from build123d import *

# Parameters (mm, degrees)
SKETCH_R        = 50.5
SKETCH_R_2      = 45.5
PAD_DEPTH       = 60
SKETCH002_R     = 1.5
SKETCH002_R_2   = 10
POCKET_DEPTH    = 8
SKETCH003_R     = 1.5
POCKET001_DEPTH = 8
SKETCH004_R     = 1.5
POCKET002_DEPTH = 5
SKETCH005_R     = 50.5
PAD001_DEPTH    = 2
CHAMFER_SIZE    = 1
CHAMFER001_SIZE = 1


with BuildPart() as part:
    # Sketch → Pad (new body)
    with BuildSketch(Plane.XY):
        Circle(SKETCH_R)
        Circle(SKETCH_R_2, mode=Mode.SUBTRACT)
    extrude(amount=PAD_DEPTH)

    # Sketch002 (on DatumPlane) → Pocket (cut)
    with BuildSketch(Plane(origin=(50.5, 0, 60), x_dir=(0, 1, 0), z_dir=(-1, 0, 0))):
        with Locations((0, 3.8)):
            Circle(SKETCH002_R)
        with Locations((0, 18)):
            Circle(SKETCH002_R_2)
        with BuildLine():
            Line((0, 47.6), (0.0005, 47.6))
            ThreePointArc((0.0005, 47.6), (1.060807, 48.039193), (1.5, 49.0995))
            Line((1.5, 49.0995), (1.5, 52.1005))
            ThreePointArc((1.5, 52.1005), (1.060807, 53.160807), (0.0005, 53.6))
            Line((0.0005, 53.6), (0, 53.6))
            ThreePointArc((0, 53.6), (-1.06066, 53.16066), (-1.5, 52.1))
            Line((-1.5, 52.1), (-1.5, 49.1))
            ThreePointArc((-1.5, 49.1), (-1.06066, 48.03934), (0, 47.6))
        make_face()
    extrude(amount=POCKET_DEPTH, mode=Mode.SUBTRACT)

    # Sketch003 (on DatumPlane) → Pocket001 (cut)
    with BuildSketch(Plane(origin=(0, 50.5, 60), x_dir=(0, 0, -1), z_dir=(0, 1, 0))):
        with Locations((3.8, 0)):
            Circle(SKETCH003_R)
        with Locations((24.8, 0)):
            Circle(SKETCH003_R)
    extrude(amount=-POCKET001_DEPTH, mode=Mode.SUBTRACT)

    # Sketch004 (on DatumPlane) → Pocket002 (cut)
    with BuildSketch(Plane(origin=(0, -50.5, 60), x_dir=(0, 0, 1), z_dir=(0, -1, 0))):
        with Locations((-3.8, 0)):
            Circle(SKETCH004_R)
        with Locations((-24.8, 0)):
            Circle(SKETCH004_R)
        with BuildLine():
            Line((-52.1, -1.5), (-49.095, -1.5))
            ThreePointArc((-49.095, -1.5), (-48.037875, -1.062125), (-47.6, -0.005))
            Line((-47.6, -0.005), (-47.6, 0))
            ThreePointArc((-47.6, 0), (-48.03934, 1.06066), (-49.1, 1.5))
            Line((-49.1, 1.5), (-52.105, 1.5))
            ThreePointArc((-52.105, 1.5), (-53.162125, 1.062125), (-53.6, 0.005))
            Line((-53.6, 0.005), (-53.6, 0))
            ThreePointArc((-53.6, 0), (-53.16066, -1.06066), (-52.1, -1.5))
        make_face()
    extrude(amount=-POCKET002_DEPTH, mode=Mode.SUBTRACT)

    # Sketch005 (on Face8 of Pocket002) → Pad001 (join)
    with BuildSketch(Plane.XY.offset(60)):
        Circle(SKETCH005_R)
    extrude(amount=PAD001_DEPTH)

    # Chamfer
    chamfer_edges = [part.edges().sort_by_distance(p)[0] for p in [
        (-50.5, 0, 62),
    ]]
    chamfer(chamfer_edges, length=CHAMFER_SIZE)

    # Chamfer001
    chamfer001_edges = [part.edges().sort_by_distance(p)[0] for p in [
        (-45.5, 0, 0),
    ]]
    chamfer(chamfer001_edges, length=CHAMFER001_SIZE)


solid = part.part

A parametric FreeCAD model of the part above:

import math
import FreeCAD as App
import Part
import Sketcher
Q = App.Units.Quantity


def edges_at(feature, points):
    """Names of the edges that pass closest to the given points."""
    edges = feature.Shape.Edges
    near = lambda p: min(range(len(edges)), key=lambda i: edges[i].distToShape(Part.Vertex(*p))[0])
    return sorted({f"Edge{near(p) + 1}" for p in points})

doc = App.newDocument("Part")
body = doc.addObject("PartDesign::Body", "Body")

# Sketch on XY plane
sketch1 = doc.addObject("Sketcher::SketchObject", "Sketch")
body.addObject(sketch1)
sketch1.AttachmentSupport = (doc.XY_Plane, [""])
sketch1.MapMode = "FlatFace"
sketch1.addGeometry([
    Part.Circle(App.Vector(0, 0, 0), App.Vector(0, 0, 1), 50),
    Part.Circle(App.Vector(0, 0, 0), App.Vector(0, 0, 1), 46),
], False)
sketch1.addConstraint([
    Sketcher.Constraint("Coincident", 0, 3, -1, 1),
    Sketcher.Constraint("Coincident", 1, 3, -1, 1),
    Sketcher.Constraint("Diameter", 0, Q("101 mm")),
    Sketcher.Constraint("Diameter", 1, Q("91 mm")),
])
pad1 = doc.addObject("PartDesign::Pad", "Pad")
body.addObject(pad1)
pad1.Profile = sketch1
pad1.Length = 60

# Sketch on YZ plane
sketch2 = doc.addObject("Sketcher::SketchObject", "Sketch001")
body.addObject(sketch2)
sketch2.AttachmentSupport = (doc.YZ_Plane, [""])
sketch2.MapMode = "FlatFace"
sketch2.AttachmentOffset = App.Placement(App.Vector(0, 0, 50.5), App.Rotation())
sketch2.addGeometry([
    Part.Circle(App.Vector(0, 56.2, 0), App.Vector(0, 0, 1), 1.5),  # 0
    Part.Circle(App.Vector(0, 42, 0), App.Vector(0, 0, 1), 10),  # 1
    Part.LineSegment(App.Vector(0, 12.4, 0), App.Vector(0.0005, 12.4, 0)),  # 2
    Part.ArcOfCircle(Part.Circle(App.Vector(0.0005, 10.9005, 0), App.Vector(0, 0, 1), 1.4995), math.radians(0), math.radians(90)),  # 3
    Part.LineSegment(App.Vector(1.5, 10.9005, 0), App.Vector(1.5, 7.8995, 0)),  # 4
    Part.ArcOfCircle(Part.Circle(App.Vector(0.0005, 7.8995, 0), App.Vector(0, 0, 1), 1.4995), math.radians(-90), math.radians(0)),  # 5
    Part.LineSegment(App.Vector(0.0005, 6.4, 0), App.Vector(0, 6.4, 0)),  # 6
    Part.ArcOfCircle(Part.Circle(App.Vector(0, 7.9, 0), App.Vector(0, 0, 1), 1.5), math.radians(-180), math.radians(-90)),  # 7
    Part.LineSegment(App.Vector(-1.5, 7.9, 0), App.Vector(-1.5, 10.9, 0)),  # 8
    Part.ArcOfCircle(Part.Circle(App.Vector(0, 10.9, 0), App.Vector(0, 0, 1), 1.5), math.radians(90), math.radians(180)),  # 9
], False)
sketch2.addConstraint([
    Sketcher.Constraint("Tangent", 2, 2, 3, 2),
    Sketcher.Constraint("Tangent", 3, 1, 4, 1),
    Sketcher.Constraint("Tangent", 4, 2, 5, 2),
    Sketcher.Constraint("Tangent", 5, 1, 6, 1),
    Sketcher.Constraint("Coincident", 6, 2, 7, 2),
    Sketcher.Constraint("Tangent", 7, 1, 8, 1),
    Sketcher.Constraint("Tangent", 8, 2, 9, 2),
    Sketcher.Constraint("Coincident", 9, 1, 2, 1),
    Sketcher.Constraint("Vertical", 4),
    Sketcher.Constraint("Vertical", 8),
    Sketcher.Constraint("Equal", 3, 5),
    Sketcher.Constraint("Equal", 0, 7),
    Sketcher.Constraint("Equal", 7, 9),
    Sketcher.Constraint("PointOnObject", 0, 3, -2),
    Sketcher.Constraint("PointOnObject", 1, 3, -2),
    Sketcher.Constraint("PointOnObject", 7, 3, -2),
    Sketcher.Constraint("PointOnObject", 6, 2, -2),
    Sketcher.Constraint("PointOnObject", 9, 1, -2),
    Sketcher.Constraint("Vertical", 5, 3, 2, 2),
    Sketcher.Constraint("Vertical", 2, 2, 5, 1),
    Sketcher.Constraint("Diameter", 0, Q("3 mm")),
    Sketcher.Constraint("Diameter", 1, Q("20 mm")),
    Sketcher.Constraint("DistanceY", 8, 1, 8, 2, Q("3 mm")),
    Sketcher.Constraint("DistanceY", -1, 1, 1, 3, Q("42 mm")),
    Sketcher.Constraint("DistanceX", 7, 1, 4, 2, Q("3 mm")),
    Sketcher.Constraint("DistanceY", -1, 1, 0, 3, Q("56.2 mm")),
    Sketcher.Constraint("DistanceY", -1, 1, 7, 3, Q("7.900001 mm")),
    Sketcher.Constraint("Radius", 3, Q("1.499499 mm")),
])
pocket1 = doc.addObject("PartDesign::Pocket", "Pocket")
body.addObject(pocket1)
pocket1.Profile = sketch2
pocket1.Length = 8

# Sketch on XZ plane
sketch3 = doc.addObject("Sketcher::SketchObject", "Sketch002")
body.addObject(sketch3)
sketch3.AttachmentSupport = (doc.XZ_Plane, [""])
sketch3.MapMode = "FlatFace"
sketch3.AttachmentOffset = App.Placement(App.Vector(0, 0, -50.5), App.Rotation())
sketch3.addGeometry([
    Part.Circle(App.Vector(0, 56.2, 0), App.Vector(0, 0, 1), 1.5),
    Part.Circle(App.Vector(0, 35.2, 0), App.Vector(0, 0, 1), 1.5),
], False)
sketch3.addConstraint([
    Sketcher.Constraint("Equal", 0, 1),
    Sketcher.Constraint("PointOnObject", 0, 3, -2),
    Sketcher.Constraint("PointOnObject", 1, 3, -2),
    Sketcher.Constraint("Diameter", 0, Q("3 mm")),
    Sketcher.Constraint("DistanceY", 1, 3, 0, 3, Q("21 mm")),
    Sketcher.Constraint("DistanceY", -1, 1, 0, 3, Q("56.2 mm")),
])
pocket2 = doc.addObject("PartDesign::Pocket", "Pocket001")
body.addObject(pocket2)
pocket2.Profile = sketch3
pocket2.Length = 8
pocket2.Reversed = True

# Sketch on XZ plane
sketch4 = doc.addObject("Sketcher::SketchObject", "Sketch003")
body.addObject(sketch4)
sketch4.AttachmentSupport = (doc.XZ_Plane, [""])
sketch4.MapMode = "FlatFace"
sketch4.AttachmentOffset = App.Placement(App.Vector(0, 0, 50.5), App.Rotation())
sketch4.addGeometry([
    Part.Circle(App.Vector(0, 56.2, 0), App.Vector(0, 0, 1), 1.5),  # 0
    Part.Circle(App.Vector(0, 35.2, 0), App.Vector(0, 0, 1), 1.5),  # 1
    Part.LineSegment(App.Vector(1.5, 7.9, 0), App.Vector(1.5, 10.905, 0)),  # 2
    Part.ArcOfCircle(Part.Circle(App.Vector(0.005, 10.905, 0), App.Vector(0, 0, 1), 1.495), math.radians(0), math.radians(90)),  # 3
    Part.LineSegment(App.Vector(0.005, 12.4, 0), App.Vector(0, 12.4, 0)),  # 4
    Part.ArcOfCircle(Part.Circle(App.Vector(0, 10.9, 0), App.Vector(0, 0, 1), 1.5), math.radians(90), math.radians(180)),  # 5
    Part.LineSegment(App.Vector(-1.5, 10.9, 0), App.Vector(-1.5, 7.895, 0)),  # 6
    Part.ArcOfCircle(Part.Circle(App.Vector(-0.005, 7.895, 0), App.Vector(0, 0, 1), 1.495), math.radians(180), math.radians(270)),  # 7
    Part.LineSegment(App.Vector(-0.005, 6.4, 0), App.Vector(0, 6.4, 0)),  # 8
    Part.ArcOfCircle(Part.Circle(App.Vector(0, 7.9, 0), App.Vector(0, 0, 1), 1.5), math.radians(-90), math.radians(0)),  # 9
], False)
sketch4.addConstraint([
    Sketcher.Constraint("Tangent", 2, 2, 3, 1),
    Sketcher.Constraint("Tangent", 3, 2, 4, 1),
    Sketcher.Constraint("Tangent", 4, 2, 5, 1),
    Sketcher.Constraint("Tangent", 5, 2, 6, 1),
    Sketcher.Constraint("Tangent", 6, 2, 7, 1),
    Sketcher.Constraint("Tangent", 7, 2, 8, 1),
    Sketcher.Constraint("Tangent", 8, 2, 9, 1),
    Sketcher.Constraint("Tangent", 9, 2, 2, 1),
    Sketcher.Constraint("Vertical", 2),
    Sketcher.Constraint("Vertical", 6),
    Sketcher.Constraint("Equal", 0, 1),
    Sketcher.Constraint("Equal", 1, 5),
    Sketcher.Constraint("Equal", 3, 7),
    Sketcher.Constraint("Equal", 5, 9),
    Sketcher.Constraint("PointOnObject", 0, 3, -2),
    Sketcher.Constraint("PointOnObject", 1, 3, -2),
    Sketcher.Constraint("PointOnObject", 5, 3, -2),
    Sketcher.Constraint("PointOnObject", 9, 3, -2),
    Sketcher.Constraint("PointOnObject", 4, 2, -2),
    Sketcher.Constraint("PointOnObject", 8, 2, -2),
    Sketcher.Constraint("Diameter", 0, Q("3 mm")),
    Sketcher.Constraint("Radius", 3, Q("1.494999 mm")),
    Sketcher.Constraint("DistanceY", 1, 3, 0, 3, Q("21 mm")),
    Sketcher.Constraint("DistanceY", 9, 3, 5, 3, Q("2.999999 mm")),
    Sketcher.Constraint("DistanceY", -1, 1, 0, 3, Q("56.2 mm")),
    Sketcher.Constraint("DistanceY", -1, 1, 5, 3, Q("10.899999 mm")),
])
pocket3 = doc.addObject("PartDesign::Pocket", "Pocket002")
body.addObject(pocket3)
pocket3.Profile = sketch4
pocket3.Length = 5

# Sketch on XY plane
sketch5 = doc.addObject("Sketcher::SketchObject", "Sketch004")
body.addObject(sketch5)
sketch5.AttachmentSupport = (doc.XY_Plane, [""])
sketch5.MapMode = "FlatFace"
sketch5.AttachmentOffset = App.Placement(App.Vector(0, 0, 60), App.Rotation())
sketch5.addGeometry(Part.Circle(App.Vector(0, 0, 0), App.Vector(0, 0, 1), 50), False)
sketch5.addConstraint([
    Sketcher.Constraint("Coincident", 0, 3, -1, 1),
    Sketcher.Constraint("Diameter", 0, Q("101 mm")),
])
pad2 = doc.addObject("PartDesign::Pad", "Pad001")
body.addObject(pad2)
pad2.Profile = sketch5
pad2.Length = 2
doc.recompute()

chamfer = doc.addObject("PartDesign::Chamfer", "Chamfer")
body.addObject(chamfer)
chamfer.Base = (pad2, edges_at(pad2, [(-50.5, 0, 62)]))
chamfer.Size = 1
doc.recompute()

chamfer2 = doc.addObject("PartDesign::Chamfer", "Chamfer001")
body.addObject(chamfer2)
chamfer2.Base = (chamfer, edges_at(chamfer, [(-45.5, 0, 0)]))
chamfer2.Size = 1

doc.recompute()
